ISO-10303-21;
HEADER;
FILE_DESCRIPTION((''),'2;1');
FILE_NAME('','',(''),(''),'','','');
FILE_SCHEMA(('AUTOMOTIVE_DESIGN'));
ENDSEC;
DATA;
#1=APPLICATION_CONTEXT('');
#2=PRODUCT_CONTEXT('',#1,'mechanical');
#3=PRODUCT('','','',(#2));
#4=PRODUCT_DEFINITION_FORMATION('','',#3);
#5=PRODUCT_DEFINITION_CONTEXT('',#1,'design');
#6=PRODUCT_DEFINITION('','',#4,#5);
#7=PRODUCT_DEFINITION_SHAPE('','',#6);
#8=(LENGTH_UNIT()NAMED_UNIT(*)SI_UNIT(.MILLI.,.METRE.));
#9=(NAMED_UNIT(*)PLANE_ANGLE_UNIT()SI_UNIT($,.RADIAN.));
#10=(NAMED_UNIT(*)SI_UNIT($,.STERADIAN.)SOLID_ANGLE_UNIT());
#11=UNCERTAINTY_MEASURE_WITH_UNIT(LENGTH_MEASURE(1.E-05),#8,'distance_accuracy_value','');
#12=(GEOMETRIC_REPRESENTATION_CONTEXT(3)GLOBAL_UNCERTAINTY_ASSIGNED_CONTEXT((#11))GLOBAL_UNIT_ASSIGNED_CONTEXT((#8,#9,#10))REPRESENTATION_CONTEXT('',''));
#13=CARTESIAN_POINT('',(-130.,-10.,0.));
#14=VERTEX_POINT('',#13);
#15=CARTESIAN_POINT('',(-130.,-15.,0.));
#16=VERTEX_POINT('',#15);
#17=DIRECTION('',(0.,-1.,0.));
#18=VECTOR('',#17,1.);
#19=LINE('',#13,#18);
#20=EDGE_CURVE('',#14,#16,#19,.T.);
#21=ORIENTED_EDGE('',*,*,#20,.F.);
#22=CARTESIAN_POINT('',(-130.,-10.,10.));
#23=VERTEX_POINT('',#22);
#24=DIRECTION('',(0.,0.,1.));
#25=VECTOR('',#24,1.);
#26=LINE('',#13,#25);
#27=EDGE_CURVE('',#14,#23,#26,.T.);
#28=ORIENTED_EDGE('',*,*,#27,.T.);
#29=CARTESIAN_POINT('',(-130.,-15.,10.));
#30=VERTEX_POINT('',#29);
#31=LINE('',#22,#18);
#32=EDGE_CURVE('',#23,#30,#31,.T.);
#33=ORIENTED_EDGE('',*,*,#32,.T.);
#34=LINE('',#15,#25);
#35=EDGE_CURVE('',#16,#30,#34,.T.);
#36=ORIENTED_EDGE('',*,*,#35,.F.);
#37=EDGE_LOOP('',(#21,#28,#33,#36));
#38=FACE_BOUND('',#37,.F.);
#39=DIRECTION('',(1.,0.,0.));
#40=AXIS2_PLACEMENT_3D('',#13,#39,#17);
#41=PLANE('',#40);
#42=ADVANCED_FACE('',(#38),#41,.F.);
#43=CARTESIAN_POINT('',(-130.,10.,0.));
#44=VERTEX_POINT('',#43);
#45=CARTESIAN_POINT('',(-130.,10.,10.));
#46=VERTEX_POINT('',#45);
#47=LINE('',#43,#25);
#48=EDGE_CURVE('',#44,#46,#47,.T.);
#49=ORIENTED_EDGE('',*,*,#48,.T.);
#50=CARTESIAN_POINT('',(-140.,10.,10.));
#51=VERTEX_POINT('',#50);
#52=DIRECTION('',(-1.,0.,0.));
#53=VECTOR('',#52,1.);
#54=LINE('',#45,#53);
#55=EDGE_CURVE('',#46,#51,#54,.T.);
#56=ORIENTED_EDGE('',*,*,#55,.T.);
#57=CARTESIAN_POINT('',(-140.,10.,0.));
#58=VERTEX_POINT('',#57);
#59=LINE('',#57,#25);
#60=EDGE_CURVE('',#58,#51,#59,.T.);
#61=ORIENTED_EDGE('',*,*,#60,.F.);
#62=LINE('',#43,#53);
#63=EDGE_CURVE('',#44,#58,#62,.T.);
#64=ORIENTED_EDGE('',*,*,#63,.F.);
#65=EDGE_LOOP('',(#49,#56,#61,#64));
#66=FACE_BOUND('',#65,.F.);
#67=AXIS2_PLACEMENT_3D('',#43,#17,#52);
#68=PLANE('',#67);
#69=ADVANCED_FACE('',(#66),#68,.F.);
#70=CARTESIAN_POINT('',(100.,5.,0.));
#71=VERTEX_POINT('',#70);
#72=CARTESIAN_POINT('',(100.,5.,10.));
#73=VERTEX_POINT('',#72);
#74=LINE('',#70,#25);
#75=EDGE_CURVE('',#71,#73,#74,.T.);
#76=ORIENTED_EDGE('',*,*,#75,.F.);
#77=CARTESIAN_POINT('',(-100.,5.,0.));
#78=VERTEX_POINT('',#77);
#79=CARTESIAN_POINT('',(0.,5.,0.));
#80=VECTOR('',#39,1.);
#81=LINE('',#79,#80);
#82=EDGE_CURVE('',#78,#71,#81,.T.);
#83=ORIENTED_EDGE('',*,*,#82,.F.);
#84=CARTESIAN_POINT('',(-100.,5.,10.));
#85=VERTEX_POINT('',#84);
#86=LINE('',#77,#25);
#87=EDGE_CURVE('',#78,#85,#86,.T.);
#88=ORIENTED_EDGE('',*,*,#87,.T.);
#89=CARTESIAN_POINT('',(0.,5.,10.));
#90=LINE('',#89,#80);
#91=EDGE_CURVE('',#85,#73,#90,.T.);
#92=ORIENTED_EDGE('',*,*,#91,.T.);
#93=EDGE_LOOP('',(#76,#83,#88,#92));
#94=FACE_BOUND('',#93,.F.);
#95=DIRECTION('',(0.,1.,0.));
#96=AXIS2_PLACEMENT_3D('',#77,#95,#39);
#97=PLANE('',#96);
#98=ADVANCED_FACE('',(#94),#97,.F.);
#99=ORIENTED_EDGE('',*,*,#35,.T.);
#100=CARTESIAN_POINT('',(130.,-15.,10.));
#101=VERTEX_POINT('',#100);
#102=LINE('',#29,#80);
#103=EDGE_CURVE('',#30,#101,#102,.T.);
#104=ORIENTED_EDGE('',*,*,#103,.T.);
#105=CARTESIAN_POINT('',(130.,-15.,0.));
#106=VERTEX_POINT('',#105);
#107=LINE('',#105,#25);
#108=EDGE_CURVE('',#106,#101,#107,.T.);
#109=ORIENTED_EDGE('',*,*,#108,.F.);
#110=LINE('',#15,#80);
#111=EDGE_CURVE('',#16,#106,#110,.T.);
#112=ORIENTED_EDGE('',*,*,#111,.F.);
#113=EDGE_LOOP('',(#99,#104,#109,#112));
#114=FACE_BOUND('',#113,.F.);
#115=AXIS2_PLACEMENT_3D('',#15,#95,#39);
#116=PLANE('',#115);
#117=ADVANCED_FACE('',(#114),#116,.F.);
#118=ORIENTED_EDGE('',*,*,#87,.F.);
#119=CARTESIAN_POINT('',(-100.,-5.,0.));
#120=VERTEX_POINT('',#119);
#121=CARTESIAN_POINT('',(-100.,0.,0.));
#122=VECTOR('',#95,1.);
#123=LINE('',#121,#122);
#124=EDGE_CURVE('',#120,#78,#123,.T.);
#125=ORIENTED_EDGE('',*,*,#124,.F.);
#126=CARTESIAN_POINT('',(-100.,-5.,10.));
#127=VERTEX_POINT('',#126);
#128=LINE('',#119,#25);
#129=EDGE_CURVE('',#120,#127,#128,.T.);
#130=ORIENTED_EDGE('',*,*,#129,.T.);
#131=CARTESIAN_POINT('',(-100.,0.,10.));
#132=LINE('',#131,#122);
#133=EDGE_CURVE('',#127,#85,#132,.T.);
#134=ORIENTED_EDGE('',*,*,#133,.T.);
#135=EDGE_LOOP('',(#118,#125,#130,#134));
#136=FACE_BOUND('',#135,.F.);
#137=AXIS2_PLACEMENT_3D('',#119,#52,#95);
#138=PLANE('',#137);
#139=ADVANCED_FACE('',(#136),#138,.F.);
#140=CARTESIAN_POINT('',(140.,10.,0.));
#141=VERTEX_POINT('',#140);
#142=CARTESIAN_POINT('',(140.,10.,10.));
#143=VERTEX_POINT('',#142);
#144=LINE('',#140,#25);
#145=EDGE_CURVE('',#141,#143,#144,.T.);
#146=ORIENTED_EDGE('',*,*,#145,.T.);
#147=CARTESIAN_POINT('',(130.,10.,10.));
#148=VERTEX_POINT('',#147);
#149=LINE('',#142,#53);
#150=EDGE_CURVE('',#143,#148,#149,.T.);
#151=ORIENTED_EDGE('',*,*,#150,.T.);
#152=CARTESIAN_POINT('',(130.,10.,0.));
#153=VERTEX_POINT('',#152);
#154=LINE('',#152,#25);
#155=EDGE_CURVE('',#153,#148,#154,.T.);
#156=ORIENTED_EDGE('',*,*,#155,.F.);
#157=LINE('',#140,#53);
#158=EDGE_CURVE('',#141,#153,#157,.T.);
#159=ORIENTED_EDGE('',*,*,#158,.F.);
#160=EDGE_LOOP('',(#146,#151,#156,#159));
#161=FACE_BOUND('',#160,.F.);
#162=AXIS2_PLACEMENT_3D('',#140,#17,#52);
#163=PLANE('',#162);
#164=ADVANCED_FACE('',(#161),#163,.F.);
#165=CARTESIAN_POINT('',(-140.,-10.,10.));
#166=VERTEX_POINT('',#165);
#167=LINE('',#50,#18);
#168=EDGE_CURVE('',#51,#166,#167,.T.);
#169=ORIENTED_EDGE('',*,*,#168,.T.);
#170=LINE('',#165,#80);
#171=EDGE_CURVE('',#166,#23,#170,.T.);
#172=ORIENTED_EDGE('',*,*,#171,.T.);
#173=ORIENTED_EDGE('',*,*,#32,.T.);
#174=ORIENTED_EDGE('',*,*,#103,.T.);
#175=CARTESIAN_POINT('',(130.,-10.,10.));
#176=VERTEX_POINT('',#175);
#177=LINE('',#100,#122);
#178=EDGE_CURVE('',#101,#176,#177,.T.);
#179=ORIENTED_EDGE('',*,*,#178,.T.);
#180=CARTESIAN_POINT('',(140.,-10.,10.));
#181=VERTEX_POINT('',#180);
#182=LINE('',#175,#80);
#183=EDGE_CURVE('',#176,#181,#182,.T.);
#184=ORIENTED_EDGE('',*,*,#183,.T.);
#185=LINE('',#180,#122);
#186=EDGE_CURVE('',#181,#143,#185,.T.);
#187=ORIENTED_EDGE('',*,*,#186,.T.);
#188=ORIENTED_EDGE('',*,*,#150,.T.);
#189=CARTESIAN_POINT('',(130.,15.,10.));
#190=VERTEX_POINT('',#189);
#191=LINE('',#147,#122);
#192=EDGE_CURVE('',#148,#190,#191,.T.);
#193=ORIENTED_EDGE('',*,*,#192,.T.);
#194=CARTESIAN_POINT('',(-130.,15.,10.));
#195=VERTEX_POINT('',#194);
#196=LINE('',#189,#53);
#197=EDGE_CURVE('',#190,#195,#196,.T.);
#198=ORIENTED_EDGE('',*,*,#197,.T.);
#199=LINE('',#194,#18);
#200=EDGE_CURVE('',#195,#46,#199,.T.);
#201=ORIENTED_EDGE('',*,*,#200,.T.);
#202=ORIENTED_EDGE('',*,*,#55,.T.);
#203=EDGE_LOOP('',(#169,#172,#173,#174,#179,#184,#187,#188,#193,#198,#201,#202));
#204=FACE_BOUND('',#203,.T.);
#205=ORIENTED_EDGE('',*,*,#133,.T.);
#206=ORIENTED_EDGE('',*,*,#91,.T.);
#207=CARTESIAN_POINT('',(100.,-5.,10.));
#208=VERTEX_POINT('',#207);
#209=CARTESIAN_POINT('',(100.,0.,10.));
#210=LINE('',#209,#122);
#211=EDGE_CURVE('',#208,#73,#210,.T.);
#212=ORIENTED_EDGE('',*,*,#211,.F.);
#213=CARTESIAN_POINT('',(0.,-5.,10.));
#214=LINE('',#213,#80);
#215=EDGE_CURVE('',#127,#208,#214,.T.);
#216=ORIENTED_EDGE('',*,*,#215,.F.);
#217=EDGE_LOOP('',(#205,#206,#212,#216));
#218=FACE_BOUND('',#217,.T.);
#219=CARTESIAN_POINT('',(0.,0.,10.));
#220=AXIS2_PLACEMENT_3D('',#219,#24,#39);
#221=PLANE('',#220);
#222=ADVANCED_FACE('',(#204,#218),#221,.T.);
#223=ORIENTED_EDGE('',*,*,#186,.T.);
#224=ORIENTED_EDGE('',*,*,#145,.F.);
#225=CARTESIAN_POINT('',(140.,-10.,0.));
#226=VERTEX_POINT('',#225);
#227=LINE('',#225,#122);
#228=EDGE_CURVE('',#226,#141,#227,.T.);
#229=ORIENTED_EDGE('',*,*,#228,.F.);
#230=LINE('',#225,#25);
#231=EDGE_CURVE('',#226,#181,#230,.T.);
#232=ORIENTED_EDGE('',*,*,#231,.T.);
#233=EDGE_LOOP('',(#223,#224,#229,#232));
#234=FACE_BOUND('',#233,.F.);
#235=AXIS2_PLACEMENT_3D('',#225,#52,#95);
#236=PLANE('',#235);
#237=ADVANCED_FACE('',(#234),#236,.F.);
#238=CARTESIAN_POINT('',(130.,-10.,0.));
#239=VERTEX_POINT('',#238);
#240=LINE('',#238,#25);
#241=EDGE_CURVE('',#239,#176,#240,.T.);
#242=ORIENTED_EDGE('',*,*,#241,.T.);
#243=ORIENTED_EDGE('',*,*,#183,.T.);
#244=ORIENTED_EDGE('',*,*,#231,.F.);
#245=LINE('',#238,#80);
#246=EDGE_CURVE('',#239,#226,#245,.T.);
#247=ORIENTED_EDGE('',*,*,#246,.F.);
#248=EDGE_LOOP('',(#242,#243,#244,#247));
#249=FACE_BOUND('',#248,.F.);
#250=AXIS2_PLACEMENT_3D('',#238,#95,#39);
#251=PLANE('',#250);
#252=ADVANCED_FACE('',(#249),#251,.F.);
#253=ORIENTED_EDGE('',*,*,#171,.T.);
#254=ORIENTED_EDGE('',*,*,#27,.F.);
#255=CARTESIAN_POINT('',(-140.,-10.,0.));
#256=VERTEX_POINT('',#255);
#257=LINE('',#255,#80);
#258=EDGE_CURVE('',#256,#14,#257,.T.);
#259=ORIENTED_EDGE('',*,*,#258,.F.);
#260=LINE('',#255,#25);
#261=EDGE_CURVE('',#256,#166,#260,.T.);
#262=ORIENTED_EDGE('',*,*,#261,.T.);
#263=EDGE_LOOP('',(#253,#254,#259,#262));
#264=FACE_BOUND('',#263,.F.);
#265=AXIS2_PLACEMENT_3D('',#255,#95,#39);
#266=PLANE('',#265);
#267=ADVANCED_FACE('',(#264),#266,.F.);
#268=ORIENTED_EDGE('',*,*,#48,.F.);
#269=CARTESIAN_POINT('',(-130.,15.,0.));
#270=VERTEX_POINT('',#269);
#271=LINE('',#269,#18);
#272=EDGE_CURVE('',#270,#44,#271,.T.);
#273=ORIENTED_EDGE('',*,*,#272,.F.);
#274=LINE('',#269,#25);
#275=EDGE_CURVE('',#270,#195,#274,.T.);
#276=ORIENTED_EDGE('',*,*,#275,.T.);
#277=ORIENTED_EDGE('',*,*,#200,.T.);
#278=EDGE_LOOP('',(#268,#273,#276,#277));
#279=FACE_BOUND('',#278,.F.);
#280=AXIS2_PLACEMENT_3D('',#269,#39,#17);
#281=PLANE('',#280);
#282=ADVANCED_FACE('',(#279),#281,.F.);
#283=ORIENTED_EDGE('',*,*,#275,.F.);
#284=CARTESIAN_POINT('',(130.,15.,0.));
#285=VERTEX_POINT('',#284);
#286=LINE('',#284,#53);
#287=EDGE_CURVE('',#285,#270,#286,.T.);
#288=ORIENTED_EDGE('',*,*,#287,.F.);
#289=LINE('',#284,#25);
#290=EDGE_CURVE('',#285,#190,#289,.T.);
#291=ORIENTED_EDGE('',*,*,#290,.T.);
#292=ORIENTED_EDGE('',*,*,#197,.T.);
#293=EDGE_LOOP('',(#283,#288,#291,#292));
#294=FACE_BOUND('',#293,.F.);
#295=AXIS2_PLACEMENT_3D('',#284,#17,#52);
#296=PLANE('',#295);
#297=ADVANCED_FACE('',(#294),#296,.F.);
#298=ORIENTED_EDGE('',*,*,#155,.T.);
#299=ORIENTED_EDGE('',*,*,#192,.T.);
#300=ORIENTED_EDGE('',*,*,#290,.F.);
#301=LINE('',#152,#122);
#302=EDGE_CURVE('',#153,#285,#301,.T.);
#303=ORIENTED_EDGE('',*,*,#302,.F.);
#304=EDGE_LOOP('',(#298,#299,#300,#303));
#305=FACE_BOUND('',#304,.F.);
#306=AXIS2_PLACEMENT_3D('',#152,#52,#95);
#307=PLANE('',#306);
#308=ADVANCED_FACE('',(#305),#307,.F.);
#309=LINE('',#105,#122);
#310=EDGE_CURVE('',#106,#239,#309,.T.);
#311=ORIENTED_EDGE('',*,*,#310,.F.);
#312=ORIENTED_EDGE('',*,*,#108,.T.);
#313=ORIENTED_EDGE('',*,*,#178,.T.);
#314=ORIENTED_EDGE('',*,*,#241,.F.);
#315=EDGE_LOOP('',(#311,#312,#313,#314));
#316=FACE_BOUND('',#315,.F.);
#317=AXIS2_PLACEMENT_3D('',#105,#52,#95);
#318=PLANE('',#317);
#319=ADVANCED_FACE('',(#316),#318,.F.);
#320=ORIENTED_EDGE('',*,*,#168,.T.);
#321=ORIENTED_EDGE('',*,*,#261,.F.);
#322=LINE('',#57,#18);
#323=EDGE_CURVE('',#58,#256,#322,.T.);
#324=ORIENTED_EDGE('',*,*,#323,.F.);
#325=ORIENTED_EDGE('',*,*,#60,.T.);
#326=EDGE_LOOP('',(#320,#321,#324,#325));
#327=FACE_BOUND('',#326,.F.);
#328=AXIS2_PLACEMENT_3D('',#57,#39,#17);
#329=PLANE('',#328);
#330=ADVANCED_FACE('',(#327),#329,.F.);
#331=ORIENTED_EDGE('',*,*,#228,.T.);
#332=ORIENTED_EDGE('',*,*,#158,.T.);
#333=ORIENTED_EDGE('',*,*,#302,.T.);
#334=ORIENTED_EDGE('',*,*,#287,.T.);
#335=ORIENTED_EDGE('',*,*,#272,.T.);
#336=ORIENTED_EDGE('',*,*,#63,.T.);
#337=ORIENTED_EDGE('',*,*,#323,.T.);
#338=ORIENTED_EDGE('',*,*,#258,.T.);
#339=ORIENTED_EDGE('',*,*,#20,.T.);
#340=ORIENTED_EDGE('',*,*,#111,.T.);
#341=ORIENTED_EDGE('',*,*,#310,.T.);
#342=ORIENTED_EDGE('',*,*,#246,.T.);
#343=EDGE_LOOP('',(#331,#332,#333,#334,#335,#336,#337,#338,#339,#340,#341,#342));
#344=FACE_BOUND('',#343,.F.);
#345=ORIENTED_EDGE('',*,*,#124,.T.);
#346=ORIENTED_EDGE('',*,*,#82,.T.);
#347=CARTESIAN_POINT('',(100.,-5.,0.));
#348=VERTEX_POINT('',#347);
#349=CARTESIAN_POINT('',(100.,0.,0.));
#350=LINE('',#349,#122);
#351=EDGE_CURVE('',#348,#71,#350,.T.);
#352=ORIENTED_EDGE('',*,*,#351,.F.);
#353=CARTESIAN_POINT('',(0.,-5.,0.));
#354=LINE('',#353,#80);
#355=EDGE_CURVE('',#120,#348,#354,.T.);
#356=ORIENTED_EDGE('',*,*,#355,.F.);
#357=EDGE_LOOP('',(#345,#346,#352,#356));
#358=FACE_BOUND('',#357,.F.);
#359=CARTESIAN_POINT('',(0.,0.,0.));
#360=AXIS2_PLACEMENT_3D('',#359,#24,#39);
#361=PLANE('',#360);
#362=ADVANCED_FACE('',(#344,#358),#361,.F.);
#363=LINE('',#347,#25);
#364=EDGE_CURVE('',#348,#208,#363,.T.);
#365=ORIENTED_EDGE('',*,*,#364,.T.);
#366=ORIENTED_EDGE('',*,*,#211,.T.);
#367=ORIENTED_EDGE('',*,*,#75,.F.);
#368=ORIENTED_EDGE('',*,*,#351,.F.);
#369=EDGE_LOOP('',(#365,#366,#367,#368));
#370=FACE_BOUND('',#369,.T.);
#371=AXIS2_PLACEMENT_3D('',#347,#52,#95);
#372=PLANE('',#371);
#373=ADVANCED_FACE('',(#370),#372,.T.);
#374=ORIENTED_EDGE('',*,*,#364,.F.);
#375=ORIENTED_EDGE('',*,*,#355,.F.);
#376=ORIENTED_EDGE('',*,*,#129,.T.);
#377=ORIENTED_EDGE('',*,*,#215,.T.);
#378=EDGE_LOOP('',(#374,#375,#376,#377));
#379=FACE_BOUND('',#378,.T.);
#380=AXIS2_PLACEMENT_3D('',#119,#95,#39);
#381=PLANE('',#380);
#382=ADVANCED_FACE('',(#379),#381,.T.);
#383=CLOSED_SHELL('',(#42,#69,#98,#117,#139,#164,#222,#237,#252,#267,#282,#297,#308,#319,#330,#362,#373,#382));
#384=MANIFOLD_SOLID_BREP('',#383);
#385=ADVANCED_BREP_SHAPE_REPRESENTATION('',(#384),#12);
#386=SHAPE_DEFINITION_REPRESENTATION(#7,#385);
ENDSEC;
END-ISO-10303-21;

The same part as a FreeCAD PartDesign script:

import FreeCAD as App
import Part
import Sketcher
Q = App.Units.Quantity


def add_polygon(sketch, points):
    """Adds a closed chain of lines whose ends are joined by coincident constraints."""
    first, n = sketch.GeometryCount, len(points)
    for a, b in zip(points, points[1:] + points[:1]):
        sketch.addGeometry(Part.LineSegment(App.Vector(*a, 0), App.Vector(*b, 0)), False)
    for i in range(n):
        sketch.addConstraint(Sketcher.Constraint("Coincident", first + i, 2, first + (i + 1) % n, 1))

doc = App.newDocument("Part")
body = doc.addObject("PartDesign::Body", "Body")

# Sketch on XY plane
sketch1 = doc.addObject("Sketcher::SketchObject", "Sketch")
body.addObject(sketch1)
sketch1.AttachmentSupport = (doc.XY_Plane, [""])
sketch1.MapMode = "FlatFace"
add_polygon(sketch1, [(-130, -15), (130, -15), (130, -10), (140, -10), (140, 10), (130, 10), (130, 15), (-130, 15), (-130, 10), (-140, 10), (-140, -10), (-130, -10)])  # lines 0-11
add_polygon(sketch1, [(100, -5), (-100, -5), (-100, 5), (100, 5)])  # lines 12-15
sketch1.addConstraint([
    Sketcher.Constraint("Horizontal", 0),
    Sketcher.Constraint("Vertical", 1),
    Sketcher.Constraint("Horizontal", 2),
    Sketcher.Constraint("Vertical", 3),
    Sketcher.Constraint("Horizontal", 4),
    Sketcher.Constraint("Vertical", 5),
    Sketcher.Constraint("Horizontal", 6),
    Sketcher.Constraint("Vertical", 7),
    Sketcher.Constraint("Horizontal", 8),
    Sketcher.Constraint("Vertical", 9),
    Sketcher.Constraint("Horizontal", 10),
    Sketcher.Constraint("Vertical", 11),
    Sketcher.Constraint("Horizontal", 12),
    Sketcher.Constraint("Vertical", 13),
    Sketcher.Constraint("Horizontal", 14),
    Sketcher.Constraint("Vertical", 15),
    Sketcher.Constraint("Symmetric", 0, 2, 6, 2, -1, 1),
    Sketcher.Constraint("Symmetric", 2, 2, 8, 2, -1, 1),
    Sketcher.Constraint("Symmetric", 4, 2, 10, 2, -1, 1),
    Sketcher.Constraint("Symmetric", 12, 2, 14, 2, -1, 1),
    Sketcher.Constraint("Symmetric", 4, 2, 7, 2, -2),
    Sketcher.Constraint("Equal", 10, 13),
    Sketcher.Constraint("DistanceX", 0, 1, 0, 2, Q("260 mm")),
    Sketcher.Constraint("DistanceX", 2, 1, 2, 2, Q("10 mm")),
    Sketcher.Constraint("DistanceX", 12, 2, 12, 1, Q("200 mm")),
    Sketcher.Constraint("DistanceY", 1, 1, 1, 2, Q("5 mm")),
    Sketcher.Constraint("DistanceY", 3, 1, 3, 2, Q("20 mm")),
])
pad1 = doc.addObject("PartDesign::Pad", "Pad")
body.addObject(pad1)
pad1.Profile = sketch1
pad1.Length = 10

doc.recompute()
